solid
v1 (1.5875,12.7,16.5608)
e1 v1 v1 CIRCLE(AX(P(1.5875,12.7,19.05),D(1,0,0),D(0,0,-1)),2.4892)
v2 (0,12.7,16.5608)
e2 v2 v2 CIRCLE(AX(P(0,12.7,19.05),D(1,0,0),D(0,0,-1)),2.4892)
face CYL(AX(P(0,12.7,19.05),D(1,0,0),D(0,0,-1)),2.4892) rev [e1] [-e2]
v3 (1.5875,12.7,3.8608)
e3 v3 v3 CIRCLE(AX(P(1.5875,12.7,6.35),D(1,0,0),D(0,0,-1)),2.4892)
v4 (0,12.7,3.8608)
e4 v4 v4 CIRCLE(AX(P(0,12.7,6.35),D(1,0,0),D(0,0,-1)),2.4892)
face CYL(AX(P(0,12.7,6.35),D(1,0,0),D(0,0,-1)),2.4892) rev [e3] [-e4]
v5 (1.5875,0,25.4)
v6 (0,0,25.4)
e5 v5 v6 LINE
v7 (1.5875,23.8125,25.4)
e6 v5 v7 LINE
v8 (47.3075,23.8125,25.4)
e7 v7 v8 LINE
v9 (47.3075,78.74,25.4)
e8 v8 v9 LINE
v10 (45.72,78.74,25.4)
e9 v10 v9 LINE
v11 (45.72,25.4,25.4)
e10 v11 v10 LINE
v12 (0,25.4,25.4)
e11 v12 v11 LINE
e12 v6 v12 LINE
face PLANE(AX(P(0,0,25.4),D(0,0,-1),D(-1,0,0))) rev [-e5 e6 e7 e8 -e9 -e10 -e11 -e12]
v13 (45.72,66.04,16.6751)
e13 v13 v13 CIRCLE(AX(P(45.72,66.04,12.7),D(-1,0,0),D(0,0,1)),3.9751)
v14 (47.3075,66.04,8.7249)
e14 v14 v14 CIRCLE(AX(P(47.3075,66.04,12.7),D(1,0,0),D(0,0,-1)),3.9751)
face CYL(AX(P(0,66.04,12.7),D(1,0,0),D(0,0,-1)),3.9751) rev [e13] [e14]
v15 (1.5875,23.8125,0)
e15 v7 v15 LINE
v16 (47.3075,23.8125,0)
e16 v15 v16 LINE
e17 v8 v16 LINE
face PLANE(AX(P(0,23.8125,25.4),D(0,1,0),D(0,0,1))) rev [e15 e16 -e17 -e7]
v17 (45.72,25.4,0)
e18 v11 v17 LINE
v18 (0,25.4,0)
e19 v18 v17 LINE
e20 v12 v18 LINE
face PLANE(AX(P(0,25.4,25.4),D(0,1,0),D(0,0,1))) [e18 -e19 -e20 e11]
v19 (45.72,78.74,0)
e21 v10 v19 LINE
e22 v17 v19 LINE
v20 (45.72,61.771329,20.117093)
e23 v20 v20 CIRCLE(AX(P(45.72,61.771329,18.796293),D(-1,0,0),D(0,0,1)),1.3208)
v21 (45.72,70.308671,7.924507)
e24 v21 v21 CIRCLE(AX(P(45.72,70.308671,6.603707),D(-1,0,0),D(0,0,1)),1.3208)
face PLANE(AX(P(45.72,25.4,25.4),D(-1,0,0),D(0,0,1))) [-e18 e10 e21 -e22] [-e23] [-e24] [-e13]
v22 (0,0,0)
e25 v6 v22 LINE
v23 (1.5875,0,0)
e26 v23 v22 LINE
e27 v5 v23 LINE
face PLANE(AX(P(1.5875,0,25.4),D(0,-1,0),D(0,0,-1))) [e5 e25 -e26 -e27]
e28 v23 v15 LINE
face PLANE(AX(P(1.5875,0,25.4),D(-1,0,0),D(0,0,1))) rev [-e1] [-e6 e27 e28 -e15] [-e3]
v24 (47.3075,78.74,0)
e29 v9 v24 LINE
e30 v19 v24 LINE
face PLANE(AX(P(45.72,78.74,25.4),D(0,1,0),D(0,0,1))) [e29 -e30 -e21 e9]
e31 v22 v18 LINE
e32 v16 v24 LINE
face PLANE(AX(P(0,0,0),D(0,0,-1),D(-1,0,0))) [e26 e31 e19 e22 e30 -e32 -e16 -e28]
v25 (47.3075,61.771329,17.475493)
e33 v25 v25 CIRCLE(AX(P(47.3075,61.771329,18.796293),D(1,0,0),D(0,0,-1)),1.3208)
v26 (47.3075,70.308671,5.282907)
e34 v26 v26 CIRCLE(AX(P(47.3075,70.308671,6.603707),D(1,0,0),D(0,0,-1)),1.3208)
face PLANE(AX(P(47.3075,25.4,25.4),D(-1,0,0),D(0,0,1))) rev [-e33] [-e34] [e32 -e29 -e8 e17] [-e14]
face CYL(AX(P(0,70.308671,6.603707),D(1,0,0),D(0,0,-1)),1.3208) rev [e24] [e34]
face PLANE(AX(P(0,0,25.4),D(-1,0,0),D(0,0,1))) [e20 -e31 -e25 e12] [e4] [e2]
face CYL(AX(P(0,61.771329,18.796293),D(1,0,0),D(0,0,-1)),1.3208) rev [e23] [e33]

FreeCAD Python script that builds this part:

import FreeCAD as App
import Part
import Sketcher

V = App.Vector
Q = App.Units.Quantity


def add_polygon(sketch, points):
    """Adds a closed chain of lines whose ends are joined by coincident constraints."""
    first, n = sketch.GeometryCount, len(points)
    for a, b in zip(points, points[1:] + points[:1]):
        sketch.addGeometry(Part.LineSegment(App.Vector(*a, 0), App.Vector(*b, 0)), False)
    for i in range(n):
        sketch.addConstraint(Sketcher.Constraint("Coincident", first + i, 2, first + (i + 1) % n, 1))

doc = App.newDocument("Part")
body = doc.addObject("PartDesign::Body", "Body")

# Sketch on XY plane
sketch1 = body.newObject("Sketcher::SketchObject", "Sketch")
sketch1.AttachmentSupport = (doc.getObject("XY_Plane"), [""])
sketch1.MapMode = "FlatFace"
add_polygon(sketch1, [(0, 25.4), (0, 0), (1.6, 0), (1.6, 23.8), (47.3, 23.8), (47.3, 78.7), (45.7, 78.7), (45.7, 25.4)])  # lines 0-7
sketch1.addConstraint(Sketcher.Constraint("Vertical", 0))
sketch1.addConstraint(Sketcher.Constraint("Horizontal", 1))
sketch1.addConstraint(Sketcher.Constraint("Vertical", 2))
sketch1.addConstraint(Sketcher.Constraint("Horizontal", 3))
sketch1.addConstraint(Sketcher.Constraint("Vertical", 4))
sketch1.addConstraint(Sketcher.Constraint("Horizontal", 5))
sketch1.addConstraint(Sketcher.Constraint("Vertical", 6))
sketch1.addConstraint(Sketcher.Constraint("Horizontal", 7))
sketch1.addConstraint(Sketcher.Constraint("Coincident", 0, 2, -1, 1))
sketch1.addConstraint(Sketcher.Constraint("Equal", 1, 5))
sketch1.addConstraint(Sketcher.Constraint("DistanceY", 0, 2, 0, 1, Q("1 in")))
sketch1.addConstraint(Sketcher.Constraint("DistanceX", 3, 1, 3, 2, Q("1.8 in")))
sketch1.addConstraint(Sketcher.Constraint("DistanceY", 6, 2, 6, 1, Q("2.1 in")))
sketch1.addConstraint(Sketcher.Constraint("DistanceX", 1, 1, 1, 2, Q("0.0625 in")))
sketch1.addConstraint(Sketcher.Constraint("DistanceY", 2, 1, 2, 2, Q("0.9375 in")))
pad1 = body.newObject("PartDesign::Pad", "Pad")
pad1.Profile = sketch1
pad1.Length = Q("1 in")

# Sketch on YZ plane
sketch2 = body.newObject("Sketcher::SketchObject", "Sketch001")
sketch2.AttachmentSupport = (doc.getObject("YZ_Plane"), [""])
sketch2.MapMode = "FlatFace"
sketch2.AttachmentOffset = App.Placement(V(0, 0, 1.8625 * 25.4), App.Rotation())
sketch2.addGeometry(Part.Circle(V(66, 12.7, 0), V(0, 0, 1), 4), False)
sketch2.addGeometry(Part.Circle(V(61.8, 18.8, 0), V(0, 0, 1), 1.3), False)
sketch2.addGeometry(Part.Circle(V(70.3, 6.6, 0), V(0, 0, 1), 1.3), False)
sketch2.addConstraint(Sketcher.Constraint("Equal", 1, 2))
sketch2.addConstraint(Sketcher.Constraint("Diameter", 0, Q("0.313 in")))
sketch2.addConstraint(Sketcher.Constraint("Diameter", 1, Q("0.104 in")))
sketch2.addConstraint(Sketcher.Constraint("DistanceX", -1, 1, 0, 3, Q("2.6 in")))
sketch2.addConstraint(Sketcher.Constraint("DistanceY", -1, 1, 0, 3, Q("0.5 in")))
sketch2.addConstraint(Sketcher.Constraint("DistanceX", -1, 1, 1, 3, Q("61.771329 mm")))
sketch2.addConstraint(Sketcher.Constraint("DistanceX", -1, 1, 2, 3, Q("70.308671 mm")))
sketch2.addConstraint(Sketcher.Constraint("DistanceY", -1, 1, 1, 3, Q("18.796293 mm")))
sketch2.addConstraint(Sketcher.Constraint("DistanceY", -1, 1, 2, 3, Q("6.603707 mm")))
pocket1 = body.newObject("PartDesign::Pocket", "Pocket")
pocket1.Profile = sketch2
pocket1.Type = "ThroughAll"

# Sketch on YZ plane
sketch3 = body.newObject("Sketcher::SketchObject", "Sketch002")
sketch3.AttachmentSupport = (doc.getObject("YZ_Plane"), [""])
sketch3.MapMode = "FlatFace"
sketch3.AttachmentOffset = App.Placement(V(0, 0, 0.0625 * 25.4), App.Rotation())
sketch3.addGeometry(Part.Circle(V(12.7, 19.1, 0), V(0, 0, 1), 2.5), False)
sketch3.addGeometry(Part.Circle(V(12.7, 6.3, 0), V(0, 0, 1), 2.5), False)
sketch3.addConstraint(Sketcher.Constraint("Equal", 0, 1))
sketch3.addConstraint(Sketcher.Constraint("Vertical", 0, 3, 1, 3))
sketch3.addConstraint(Sketcher.Constraint("Diameter", 0, Q("0.196 in")))
sketch3.addConstraint(Sketcher.Constraint("DistanceX", -1, 1, 0, 3, Q("0.5 in")))
sketch3.addConstraint(Sketcher.Constraint("DistanceY", 1, 3, 0, 3, Q("0.5 in")))
sketch3.addConstraint(Sketcher.Constraint("DistanceY", -1, 1, 0, 3, Q("0.75 in")))
pocket2 = body.newObject("PartDesign::Pocket", "Pocket001")
pocket2.Profile = sketch3
pocket2.Type = "ThroughAll"

doc.recompute()
